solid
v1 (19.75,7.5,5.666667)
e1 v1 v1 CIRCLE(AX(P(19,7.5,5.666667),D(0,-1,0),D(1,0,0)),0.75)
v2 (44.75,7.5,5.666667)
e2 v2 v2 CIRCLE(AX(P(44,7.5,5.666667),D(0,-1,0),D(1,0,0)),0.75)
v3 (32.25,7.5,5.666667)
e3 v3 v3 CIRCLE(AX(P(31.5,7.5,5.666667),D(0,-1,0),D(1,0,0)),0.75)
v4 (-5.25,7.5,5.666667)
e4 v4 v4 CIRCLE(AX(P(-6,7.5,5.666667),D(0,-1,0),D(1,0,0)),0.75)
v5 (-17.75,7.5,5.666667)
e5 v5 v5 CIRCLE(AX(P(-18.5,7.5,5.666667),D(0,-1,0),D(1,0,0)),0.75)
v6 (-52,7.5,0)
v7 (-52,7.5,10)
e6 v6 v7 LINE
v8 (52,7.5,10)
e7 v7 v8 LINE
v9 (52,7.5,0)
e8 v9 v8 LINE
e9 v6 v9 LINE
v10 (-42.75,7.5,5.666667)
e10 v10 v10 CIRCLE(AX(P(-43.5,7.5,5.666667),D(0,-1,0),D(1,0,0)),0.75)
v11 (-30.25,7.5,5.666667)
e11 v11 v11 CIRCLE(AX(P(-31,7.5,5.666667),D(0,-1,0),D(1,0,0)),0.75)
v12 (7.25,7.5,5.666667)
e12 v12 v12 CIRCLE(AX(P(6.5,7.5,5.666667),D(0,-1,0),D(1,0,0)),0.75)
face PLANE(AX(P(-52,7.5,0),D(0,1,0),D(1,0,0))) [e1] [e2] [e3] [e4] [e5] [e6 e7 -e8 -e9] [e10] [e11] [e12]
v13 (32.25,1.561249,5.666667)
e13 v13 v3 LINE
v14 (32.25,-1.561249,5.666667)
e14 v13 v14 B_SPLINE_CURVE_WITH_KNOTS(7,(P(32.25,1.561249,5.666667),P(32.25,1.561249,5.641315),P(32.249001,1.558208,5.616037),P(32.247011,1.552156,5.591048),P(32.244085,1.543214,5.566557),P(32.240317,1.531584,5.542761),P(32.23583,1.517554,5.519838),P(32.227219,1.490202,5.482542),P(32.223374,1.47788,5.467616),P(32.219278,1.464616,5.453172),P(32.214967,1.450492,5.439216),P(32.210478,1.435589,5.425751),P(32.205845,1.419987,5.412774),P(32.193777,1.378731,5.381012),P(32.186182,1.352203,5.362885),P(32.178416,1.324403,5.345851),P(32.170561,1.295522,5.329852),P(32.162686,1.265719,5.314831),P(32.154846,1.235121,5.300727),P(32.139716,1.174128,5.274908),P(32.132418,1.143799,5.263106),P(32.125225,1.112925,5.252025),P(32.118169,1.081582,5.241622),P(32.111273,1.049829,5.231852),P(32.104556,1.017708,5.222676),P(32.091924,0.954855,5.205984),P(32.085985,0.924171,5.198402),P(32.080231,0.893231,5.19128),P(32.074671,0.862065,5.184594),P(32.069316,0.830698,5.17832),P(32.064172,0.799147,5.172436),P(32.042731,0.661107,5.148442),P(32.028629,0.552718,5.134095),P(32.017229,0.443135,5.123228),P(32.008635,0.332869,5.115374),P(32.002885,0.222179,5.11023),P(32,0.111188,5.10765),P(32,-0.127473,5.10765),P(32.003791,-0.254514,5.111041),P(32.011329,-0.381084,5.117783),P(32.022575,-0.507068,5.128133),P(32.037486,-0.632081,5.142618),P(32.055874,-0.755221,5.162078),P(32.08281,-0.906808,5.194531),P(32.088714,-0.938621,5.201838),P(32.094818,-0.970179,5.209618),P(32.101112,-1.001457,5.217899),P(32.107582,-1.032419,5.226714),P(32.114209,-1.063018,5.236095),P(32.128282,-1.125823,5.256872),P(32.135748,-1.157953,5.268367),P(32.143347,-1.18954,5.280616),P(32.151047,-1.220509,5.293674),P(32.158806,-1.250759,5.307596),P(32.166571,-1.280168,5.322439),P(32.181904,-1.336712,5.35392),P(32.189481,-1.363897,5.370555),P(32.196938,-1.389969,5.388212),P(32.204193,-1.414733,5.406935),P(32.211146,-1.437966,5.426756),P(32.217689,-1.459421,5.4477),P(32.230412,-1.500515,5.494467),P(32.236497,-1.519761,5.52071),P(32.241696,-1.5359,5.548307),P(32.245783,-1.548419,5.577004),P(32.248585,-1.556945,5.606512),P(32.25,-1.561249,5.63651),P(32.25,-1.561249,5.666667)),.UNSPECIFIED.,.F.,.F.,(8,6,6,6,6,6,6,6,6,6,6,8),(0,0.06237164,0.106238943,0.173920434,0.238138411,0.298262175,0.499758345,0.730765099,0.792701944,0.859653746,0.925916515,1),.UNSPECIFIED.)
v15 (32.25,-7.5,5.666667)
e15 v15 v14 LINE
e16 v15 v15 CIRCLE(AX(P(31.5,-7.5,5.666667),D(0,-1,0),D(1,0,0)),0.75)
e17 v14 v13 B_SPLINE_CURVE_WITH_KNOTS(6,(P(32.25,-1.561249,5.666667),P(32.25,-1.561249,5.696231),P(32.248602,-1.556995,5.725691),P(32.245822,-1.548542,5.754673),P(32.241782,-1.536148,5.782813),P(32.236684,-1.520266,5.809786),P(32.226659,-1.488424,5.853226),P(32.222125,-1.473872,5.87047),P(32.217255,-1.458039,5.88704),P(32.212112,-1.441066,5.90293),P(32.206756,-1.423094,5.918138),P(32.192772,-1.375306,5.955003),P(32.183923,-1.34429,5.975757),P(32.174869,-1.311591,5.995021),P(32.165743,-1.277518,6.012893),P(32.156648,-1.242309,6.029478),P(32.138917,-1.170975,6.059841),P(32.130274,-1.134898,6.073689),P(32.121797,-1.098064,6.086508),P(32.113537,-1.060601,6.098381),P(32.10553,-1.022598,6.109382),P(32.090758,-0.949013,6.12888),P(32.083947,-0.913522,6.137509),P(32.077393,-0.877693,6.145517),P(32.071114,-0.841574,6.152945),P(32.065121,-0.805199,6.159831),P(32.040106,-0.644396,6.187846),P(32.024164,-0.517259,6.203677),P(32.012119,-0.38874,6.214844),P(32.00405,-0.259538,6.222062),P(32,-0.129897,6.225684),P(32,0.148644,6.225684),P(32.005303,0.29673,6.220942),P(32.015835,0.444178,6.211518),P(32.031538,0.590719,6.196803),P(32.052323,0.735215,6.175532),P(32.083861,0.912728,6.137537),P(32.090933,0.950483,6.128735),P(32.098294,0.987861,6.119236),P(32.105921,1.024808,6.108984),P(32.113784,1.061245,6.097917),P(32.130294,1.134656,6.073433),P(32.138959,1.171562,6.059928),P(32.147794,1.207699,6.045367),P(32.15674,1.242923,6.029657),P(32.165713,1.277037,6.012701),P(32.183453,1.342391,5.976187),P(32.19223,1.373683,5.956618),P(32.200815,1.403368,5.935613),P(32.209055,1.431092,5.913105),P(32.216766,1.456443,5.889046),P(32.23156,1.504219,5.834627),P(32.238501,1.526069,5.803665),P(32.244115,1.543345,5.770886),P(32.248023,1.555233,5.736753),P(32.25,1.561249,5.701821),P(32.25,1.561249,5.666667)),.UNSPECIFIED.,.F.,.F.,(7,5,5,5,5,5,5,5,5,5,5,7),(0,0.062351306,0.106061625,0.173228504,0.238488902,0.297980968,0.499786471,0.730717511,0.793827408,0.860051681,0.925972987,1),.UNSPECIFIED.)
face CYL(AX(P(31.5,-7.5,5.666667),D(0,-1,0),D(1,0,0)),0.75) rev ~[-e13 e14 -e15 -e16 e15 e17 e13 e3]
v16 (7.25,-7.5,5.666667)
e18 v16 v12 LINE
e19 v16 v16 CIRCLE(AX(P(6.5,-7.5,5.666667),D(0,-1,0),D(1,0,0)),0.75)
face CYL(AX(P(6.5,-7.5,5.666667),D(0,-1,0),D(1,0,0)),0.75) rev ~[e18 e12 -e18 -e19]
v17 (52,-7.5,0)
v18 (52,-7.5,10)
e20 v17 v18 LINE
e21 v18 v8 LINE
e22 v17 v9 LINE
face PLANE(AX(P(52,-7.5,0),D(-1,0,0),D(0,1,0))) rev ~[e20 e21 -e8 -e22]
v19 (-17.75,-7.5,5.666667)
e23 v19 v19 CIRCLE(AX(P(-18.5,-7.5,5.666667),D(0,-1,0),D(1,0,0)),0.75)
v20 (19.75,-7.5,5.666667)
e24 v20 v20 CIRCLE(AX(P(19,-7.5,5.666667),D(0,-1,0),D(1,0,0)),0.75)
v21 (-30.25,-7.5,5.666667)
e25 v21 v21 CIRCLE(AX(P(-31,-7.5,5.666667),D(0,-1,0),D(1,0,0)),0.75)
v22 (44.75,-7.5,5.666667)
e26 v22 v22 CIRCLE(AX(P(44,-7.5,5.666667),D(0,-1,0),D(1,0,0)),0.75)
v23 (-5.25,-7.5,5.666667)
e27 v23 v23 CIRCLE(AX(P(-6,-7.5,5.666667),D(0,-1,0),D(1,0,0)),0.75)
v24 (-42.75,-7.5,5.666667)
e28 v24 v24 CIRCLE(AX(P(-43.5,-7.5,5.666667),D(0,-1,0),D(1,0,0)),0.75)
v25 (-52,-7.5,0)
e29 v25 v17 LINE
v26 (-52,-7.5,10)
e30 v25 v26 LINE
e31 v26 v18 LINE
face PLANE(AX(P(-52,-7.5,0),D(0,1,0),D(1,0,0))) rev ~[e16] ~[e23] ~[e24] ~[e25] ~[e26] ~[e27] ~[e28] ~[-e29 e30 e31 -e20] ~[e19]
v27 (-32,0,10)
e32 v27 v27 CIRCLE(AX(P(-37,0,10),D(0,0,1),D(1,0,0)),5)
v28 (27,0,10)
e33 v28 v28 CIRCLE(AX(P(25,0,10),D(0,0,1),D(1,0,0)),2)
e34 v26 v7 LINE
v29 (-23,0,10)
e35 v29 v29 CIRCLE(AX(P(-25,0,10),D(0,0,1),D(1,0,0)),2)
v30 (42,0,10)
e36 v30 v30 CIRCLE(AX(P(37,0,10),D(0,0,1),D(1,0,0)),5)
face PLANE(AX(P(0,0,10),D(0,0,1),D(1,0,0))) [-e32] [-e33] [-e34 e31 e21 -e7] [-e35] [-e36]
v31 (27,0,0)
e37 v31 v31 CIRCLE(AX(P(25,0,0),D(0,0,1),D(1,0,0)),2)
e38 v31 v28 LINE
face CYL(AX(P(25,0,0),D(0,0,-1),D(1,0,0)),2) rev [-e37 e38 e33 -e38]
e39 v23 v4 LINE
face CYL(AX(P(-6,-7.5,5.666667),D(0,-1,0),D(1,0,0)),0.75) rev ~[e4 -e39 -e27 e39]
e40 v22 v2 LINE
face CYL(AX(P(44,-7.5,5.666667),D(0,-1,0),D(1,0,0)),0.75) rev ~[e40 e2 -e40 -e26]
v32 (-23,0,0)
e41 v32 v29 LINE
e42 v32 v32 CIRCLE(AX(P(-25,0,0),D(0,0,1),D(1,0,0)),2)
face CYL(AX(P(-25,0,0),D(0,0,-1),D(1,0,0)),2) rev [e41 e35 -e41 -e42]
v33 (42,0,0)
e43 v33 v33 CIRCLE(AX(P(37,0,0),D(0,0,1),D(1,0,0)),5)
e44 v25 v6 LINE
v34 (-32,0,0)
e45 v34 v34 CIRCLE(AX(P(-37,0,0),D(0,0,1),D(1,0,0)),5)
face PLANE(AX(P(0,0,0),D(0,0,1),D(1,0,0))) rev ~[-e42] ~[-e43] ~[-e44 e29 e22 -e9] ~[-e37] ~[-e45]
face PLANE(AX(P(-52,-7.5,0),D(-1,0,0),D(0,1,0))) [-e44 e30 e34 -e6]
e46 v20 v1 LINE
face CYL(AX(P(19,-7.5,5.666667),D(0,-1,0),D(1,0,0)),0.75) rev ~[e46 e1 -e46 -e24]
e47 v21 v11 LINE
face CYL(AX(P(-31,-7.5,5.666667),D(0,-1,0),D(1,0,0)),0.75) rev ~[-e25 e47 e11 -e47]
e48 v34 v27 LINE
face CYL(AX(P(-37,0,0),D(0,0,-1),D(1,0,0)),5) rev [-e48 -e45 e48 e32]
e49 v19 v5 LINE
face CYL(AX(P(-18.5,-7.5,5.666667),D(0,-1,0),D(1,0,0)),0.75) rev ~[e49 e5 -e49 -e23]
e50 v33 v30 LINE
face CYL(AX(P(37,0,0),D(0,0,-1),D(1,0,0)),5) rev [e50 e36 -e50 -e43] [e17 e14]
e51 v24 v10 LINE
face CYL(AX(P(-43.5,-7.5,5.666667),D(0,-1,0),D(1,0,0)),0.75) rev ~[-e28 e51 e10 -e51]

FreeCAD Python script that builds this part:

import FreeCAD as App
import Part
import Sketcher
from FreeCAD import Vector


def add_polygon(sketch, points):
    """Adds a closed chain of lines whose ends are joined by coincident constraints."""
    first, n = sketch.GeometryCount, len(points)
    for a, b in zip(points, points[1:] + points[:1]):
        sketch.addGeometry(Part.LineSegment(App.Vector(*a, 0), App.Vector(*b, 0)), False)
    for i in range(n):
        sketch.addConstraint(Sketcher.Constraint("Coincident", first + i, 2, first + (i + 1) % n, 1))

doc = App.newDocument("Part")
body = doc.addObject("PartDesign::Body", "Body")

sketch1 = body.newObject("Sketcher::SketchObject", "Sketch")
sketch1.AttachmentSupport = (doc.getObject("XY_Plane"), [""])
sketch1.MapMode = "FlatFace"
add_polygon(sketch1, [(-52, 7.5), (-52, -7.5), (52, -7.5), (52, 7.5)])
sketch1.addGeometry(Part.Circle(Vector(-37, 0, 0), Vector(0, 0, 1), 5), False)
sketch1.addGeometry(Part.Circle(Vector(-25, 0, 0), Vector(0, 0, 1), 2), False)
sketch1.addGeometry(Part.Circle(Vector(25, 0, 0), Vector(0, 0, 1), 2), False)
sketch1.addGeometry(Part.Circle(Vector(37, 0, 0), Vector(0, 0, 1), 5), False)
sketch1.addConstraint(Sketcher.Constraint("Vertical", 0))
sketch1.addConstraint(Sketcher.Constraint("Horizontal", 1))
sketch1.addConstraint(Sketcher.Constraint("Vertical", 2))
sketch1.addConstraint(Sketcher.Constraint("Horizontal", 3))
sketch1.addConstraint(Sketcher.Constraint("Equal", 5, 6))
sketch1.addConstraint(Sketcher.Constraint("Equal", 4, 7))
sketch1.addConstraint(Sketcher.Constraint("Symmetric", 5, 3, 6, 3, -1, 1))
sketch1.addConstraint(Sketcher.Constraint("Symmetric", 4, 3, 7, 3, -1, 1))
sketch1.addConstraint(Sketcher.Constraint("Symmetric", 0, 2, 2, 2, -1, 1))
sketch1.addConstraint(Sketcher.Constraint("PointOnObject", 4, 3, -1))
sketch1.addConstraint(Sketcher.Constraint("PointOnObject", 5, 3, -1))
sketch1.addConstraint(Sketcher.Constraint("Diameter", 4, 10.0))
sketch1.addConstraint(Sketcher.Constraint("Diameter", 5, 4.0))
sketch1.addConstraint(Sketcher.Constraint("DistanceX", 1, 1, 1, 2, 104.0))
sketch1.addConstraint(Sketcher.Constraint("DistanceY", 0, 2, 0, 1, 15.0))
sketch1.addConstraint(Sketcher.Constraint("DistanceX", 4, 3, -1, 1, 37.0))
sketch1.addConstraint(Sketcher.Constraint("DistanceX", 5, 3, -1, 1, 25.0))
pad1 = body.newObject("PartDesign::Pad", "Pad")
pad1.Profile = sketch1
pad1.Length = 10

sketch2 = body.newObject("Sketcher::SketchObject", "Sketch001")
sketch2.AttachmentSupport = (doc.getObject("XZ_Plane"), [""])
sketch2.MapMode = "FlatFace"
sketch2.AttachmentOffset = App.Placement(Vector(0, 0, 7.5), App.Rotation())
sketch2.addGeometry(Part.Circle(Vector(-43.5, 5.7, 0), Vector(0, 0, 1), 0.8), False)
sketch2.addGeometry(Part.Circle(Vector(-31, 5.7, 0), Vector(0, 0, 1), 0.8), False)
sketch2.addGeometry(Part.Circle(Vector(-18.5, 5.7, 0), Vector(0, 0, 1), 0.8), False)
sketch2.addGeometry(Part.Circle(Vector(-6, 5.7, 0), Vector(0, 0, 1), 0.8), False)
sketch2.addGeometry(Part.Circle(Vector(6.5, 5.7, 0), Vector(0, 0, 1), 0.8), False)
sketch2.addGeometry(Part.Circle(Vector(19, 5.7, 0), Vector(0, 0, 1), 0.8), False)
sketch2.addGeometry(Part.Circle(Vector(31.5, 5.7, 0), Vector(0, 0, 1), 0.8), False)
sketch2.addGeometry(Part.Circle(Vector(44, 5.7, 0), Vector(0, 0, 1), 0.8), False)
sketch2.addConstraint(Sketcher.Constraint("Equal", 0, 1))
sketch2.addConstraint(Sketcher.Constraint("Equal", 1, 2))
sketch2.addConstraint(Sketcher.Constraint("Equal", 2, 3))
sketch2.addConstraint(Sketcher.Constraint("Equal", 3, 4))
sketch2.addConstraint(Sketcher.Constraint("Equal", 4, 5))
sketch2.addConstraint(Sketcher.Constraint("Equal", 5, 6))
sketch2.addConstraint(Sketcher.Constraint("Equal", 6, 7))
sketch2.addConstraint(Sketcher.Constraint("Horizontal", 0, 3, 1, 3))
sketch2.addConstraint(Sketcher.Constraint("Horizontal", 1, 3, 2, 3))
sketch2.addConstraint(Sketcher.Constraint("Horizontal", 2, 3, 3, 3))
sketch2.addConstraint(Sketcher.Constraint("Horizontal", 3, 3, 4, 3))
sketch2.addConstraint(Sketcher.Constraint("Horizontal", 4, 3, 5, 3))
sketch2.addConstraint(Sketcher.Constraint("Horizontal", 5, 3, 6, 3))
sketch2.addConstraint(Sketcher.Constraint("Horizontal", 6, 3, 7, 3))
sketch2.addConstraint(Sketcher.Constraint("Diameter", 0, 1.5))
sketch2.addConstraint(Sketcher.Constraint("DistanceX", 1, 3, -1, 1, 31.0))
sketch2.addConstraint(Sketcher.Constraint("DistanceX", 3, 3, -1, 1, 6.0))
sketch2.addConstraint(Sketcher.Constraint("DistanceX", -1, 1, 5, 3, 19.0))
sketch2.addConstraint(Sketcher.Constraint("DistanceX", -1, 1, 7, 3, 44.0))
sketch2.addConstraint(Sketcher.Constraint("DistanceX", 0, 3, 2, 3, 25.0))
sketch2.addConstraint(Sketcher.Constraint("DistanceX", 2, 3, 4, 3, 25.0))
sketch2.addConstraint(Sketcher.Constraint("DistanceX", 4, 3, 6, 3, 25.0))
sketch2.addConstraint(Sketcher.Constraint("DistanceX", 0, 3, -1, 1, 43.5))
sketch2.addConstraint(Sketcher.Constraint("DistanceY", -1, 1, 0, 3, 5.666667))
pocket1 = body.newObject("PartDesign::Pocket", "Pocket")
pocket1.Profile = sketch2
pocket1.Length = 25

doc.recompute()
